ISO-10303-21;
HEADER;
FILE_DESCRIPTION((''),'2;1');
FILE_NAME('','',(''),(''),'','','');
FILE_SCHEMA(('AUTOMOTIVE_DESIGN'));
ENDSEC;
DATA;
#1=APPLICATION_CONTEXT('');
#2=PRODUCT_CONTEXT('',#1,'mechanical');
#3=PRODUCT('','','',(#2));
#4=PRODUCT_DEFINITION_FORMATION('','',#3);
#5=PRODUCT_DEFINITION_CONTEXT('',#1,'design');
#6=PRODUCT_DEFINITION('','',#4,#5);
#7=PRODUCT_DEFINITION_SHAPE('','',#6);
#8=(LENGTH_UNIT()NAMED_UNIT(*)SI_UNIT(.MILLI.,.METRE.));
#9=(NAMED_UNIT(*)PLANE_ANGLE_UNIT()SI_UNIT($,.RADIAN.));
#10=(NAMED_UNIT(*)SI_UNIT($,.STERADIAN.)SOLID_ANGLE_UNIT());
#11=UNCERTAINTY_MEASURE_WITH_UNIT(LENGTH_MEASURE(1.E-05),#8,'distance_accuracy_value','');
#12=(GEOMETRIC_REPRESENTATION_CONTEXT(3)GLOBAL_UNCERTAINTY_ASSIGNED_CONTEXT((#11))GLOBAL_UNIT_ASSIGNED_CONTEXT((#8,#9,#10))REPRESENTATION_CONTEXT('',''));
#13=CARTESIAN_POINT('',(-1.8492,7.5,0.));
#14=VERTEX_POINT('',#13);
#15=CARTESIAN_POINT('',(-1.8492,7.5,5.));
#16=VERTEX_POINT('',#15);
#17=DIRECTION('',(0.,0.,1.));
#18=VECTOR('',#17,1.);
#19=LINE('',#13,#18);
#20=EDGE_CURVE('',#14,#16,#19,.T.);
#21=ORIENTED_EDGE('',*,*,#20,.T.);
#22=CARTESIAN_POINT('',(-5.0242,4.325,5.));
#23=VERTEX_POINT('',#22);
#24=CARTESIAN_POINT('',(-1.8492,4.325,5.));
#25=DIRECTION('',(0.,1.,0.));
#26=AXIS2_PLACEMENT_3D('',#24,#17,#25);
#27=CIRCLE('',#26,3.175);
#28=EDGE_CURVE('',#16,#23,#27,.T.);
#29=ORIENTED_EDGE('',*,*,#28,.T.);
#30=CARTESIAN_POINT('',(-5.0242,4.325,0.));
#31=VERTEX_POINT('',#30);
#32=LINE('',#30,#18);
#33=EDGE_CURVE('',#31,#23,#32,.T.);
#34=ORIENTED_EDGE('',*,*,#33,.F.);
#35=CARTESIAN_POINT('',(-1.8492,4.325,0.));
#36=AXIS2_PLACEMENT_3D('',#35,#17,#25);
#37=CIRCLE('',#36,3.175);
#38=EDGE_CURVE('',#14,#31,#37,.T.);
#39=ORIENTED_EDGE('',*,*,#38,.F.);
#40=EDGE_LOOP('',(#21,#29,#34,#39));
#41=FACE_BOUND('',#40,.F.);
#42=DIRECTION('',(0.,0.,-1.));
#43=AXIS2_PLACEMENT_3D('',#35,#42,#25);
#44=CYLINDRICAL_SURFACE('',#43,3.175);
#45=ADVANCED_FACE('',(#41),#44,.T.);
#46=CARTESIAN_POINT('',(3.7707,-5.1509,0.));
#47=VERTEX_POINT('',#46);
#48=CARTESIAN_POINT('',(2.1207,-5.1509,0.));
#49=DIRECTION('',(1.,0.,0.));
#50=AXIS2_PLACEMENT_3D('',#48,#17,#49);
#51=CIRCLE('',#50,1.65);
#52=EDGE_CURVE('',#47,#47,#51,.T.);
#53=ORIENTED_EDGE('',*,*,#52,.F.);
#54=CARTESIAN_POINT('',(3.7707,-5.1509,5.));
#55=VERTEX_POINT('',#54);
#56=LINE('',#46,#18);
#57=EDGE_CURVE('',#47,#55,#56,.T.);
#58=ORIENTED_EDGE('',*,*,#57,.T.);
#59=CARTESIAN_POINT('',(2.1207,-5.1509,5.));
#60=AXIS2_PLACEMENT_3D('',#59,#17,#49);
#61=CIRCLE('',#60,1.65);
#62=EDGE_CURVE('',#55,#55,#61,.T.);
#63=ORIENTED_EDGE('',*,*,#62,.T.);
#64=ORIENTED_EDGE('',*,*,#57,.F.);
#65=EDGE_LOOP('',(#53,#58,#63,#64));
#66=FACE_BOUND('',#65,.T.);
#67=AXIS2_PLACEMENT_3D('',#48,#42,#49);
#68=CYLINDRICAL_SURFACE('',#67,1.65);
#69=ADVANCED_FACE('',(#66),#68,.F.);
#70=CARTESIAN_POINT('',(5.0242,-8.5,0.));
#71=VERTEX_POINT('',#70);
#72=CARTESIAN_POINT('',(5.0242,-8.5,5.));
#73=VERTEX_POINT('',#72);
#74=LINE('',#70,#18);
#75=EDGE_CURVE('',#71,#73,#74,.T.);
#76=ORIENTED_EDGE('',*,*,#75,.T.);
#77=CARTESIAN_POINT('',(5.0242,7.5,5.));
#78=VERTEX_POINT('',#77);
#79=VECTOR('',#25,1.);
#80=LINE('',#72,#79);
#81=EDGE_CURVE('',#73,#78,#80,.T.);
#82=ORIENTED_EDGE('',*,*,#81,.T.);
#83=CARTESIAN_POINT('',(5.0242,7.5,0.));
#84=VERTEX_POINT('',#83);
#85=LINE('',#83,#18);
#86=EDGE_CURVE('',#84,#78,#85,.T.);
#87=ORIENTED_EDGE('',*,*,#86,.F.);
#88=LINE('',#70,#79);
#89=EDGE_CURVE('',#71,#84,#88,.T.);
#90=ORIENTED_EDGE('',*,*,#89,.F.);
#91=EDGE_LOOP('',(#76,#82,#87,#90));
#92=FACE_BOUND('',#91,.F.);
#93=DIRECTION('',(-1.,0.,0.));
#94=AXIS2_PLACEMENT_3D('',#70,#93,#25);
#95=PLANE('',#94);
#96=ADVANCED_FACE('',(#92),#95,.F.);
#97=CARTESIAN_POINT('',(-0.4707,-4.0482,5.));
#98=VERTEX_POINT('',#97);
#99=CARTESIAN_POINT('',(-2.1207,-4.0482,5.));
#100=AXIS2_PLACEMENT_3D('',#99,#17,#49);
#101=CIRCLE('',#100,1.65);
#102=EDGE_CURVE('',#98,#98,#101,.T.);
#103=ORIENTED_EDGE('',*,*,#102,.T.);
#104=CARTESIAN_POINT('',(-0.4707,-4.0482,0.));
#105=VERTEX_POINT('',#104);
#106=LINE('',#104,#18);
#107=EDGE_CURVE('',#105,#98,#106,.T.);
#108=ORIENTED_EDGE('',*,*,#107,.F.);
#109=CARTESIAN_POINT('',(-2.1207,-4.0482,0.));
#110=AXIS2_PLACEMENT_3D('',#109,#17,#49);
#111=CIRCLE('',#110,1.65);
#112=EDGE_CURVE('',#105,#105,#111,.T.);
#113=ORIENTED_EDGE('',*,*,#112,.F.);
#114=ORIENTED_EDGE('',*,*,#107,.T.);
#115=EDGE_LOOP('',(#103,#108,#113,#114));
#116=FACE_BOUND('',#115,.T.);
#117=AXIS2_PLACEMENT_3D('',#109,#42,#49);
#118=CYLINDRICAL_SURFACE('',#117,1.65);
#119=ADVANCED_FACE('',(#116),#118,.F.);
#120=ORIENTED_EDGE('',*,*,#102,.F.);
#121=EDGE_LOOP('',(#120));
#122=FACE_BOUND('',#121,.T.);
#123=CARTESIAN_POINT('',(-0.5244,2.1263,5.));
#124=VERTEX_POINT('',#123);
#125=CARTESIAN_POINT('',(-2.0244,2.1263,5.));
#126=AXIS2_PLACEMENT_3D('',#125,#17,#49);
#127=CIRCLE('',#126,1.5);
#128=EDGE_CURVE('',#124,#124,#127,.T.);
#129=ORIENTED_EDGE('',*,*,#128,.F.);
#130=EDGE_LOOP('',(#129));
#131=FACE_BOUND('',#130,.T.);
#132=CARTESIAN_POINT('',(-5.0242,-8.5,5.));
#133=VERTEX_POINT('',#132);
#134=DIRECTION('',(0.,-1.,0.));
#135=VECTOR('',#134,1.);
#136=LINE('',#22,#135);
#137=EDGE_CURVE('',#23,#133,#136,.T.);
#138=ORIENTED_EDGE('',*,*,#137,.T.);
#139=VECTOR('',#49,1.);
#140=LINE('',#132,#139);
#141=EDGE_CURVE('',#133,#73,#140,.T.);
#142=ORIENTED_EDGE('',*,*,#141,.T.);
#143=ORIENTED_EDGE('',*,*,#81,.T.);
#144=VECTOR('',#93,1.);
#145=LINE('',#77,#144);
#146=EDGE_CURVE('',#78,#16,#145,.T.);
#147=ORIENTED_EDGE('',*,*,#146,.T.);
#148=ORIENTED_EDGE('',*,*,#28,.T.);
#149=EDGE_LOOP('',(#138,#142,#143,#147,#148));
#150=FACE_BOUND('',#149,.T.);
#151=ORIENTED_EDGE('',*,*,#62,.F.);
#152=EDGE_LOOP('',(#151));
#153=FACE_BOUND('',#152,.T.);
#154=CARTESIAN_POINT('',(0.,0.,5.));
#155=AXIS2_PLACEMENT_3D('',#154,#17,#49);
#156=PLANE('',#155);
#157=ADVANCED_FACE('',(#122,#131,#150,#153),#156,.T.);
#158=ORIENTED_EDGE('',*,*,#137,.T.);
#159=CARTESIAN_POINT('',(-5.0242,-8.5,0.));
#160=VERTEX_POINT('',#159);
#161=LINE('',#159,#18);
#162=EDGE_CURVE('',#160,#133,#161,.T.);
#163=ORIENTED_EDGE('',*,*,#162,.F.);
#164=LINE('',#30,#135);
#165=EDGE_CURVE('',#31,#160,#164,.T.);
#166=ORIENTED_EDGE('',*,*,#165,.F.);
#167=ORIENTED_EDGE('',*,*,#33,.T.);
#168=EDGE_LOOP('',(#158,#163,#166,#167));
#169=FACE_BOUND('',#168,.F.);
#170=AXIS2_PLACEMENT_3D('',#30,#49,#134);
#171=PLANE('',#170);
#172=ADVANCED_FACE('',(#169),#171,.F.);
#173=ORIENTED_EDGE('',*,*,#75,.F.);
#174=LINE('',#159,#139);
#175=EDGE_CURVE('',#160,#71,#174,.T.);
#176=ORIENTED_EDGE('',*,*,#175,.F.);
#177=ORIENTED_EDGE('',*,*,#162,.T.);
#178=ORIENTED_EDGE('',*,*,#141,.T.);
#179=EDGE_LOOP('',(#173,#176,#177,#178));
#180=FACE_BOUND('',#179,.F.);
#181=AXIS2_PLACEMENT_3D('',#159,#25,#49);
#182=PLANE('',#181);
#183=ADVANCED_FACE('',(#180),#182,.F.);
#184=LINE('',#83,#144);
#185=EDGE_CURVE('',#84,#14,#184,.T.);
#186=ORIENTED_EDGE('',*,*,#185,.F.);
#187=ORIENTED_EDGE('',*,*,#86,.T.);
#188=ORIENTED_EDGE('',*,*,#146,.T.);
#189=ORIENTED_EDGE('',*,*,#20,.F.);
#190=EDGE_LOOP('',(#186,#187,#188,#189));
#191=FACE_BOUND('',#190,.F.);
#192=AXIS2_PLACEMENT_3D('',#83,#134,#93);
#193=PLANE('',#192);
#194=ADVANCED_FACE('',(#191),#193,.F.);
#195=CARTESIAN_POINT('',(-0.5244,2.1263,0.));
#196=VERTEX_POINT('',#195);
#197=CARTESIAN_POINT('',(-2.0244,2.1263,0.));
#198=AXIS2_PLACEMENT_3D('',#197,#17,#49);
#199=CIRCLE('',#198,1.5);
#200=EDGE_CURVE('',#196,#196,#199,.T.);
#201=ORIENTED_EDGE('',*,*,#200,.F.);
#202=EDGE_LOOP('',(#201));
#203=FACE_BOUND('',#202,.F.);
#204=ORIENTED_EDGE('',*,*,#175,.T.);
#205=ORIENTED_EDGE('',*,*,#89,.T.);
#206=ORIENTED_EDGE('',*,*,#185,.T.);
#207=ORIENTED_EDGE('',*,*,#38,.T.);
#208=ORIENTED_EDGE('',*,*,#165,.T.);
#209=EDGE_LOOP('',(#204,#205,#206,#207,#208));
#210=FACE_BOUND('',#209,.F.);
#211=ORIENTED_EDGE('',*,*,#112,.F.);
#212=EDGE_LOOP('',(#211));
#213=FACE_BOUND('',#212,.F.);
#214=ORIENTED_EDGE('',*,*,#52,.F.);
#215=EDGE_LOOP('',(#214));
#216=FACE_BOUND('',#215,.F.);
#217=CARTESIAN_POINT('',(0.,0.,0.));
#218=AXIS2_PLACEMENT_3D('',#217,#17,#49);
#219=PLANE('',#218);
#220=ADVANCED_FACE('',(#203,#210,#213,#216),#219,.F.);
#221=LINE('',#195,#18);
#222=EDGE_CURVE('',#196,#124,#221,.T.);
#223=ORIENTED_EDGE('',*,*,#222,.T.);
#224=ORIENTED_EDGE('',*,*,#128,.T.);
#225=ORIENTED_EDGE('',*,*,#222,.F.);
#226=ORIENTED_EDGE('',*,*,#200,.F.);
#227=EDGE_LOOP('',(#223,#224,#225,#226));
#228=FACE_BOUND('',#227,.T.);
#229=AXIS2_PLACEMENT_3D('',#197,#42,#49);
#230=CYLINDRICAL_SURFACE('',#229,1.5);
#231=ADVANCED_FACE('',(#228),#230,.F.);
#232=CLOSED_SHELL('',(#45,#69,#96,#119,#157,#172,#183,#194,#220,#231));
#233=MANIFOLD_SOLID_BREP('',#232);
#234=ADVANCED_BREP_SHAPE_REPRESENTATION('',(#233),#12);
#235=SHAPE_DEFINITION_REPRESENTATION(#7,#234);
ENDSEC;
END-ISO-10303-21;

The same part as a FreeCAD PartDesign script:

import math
import FreeCAD as App
import Part
import Sketcher
from FreeCAD import Vector

doc = App.newDocument("Part")
params = doc.addObject("Spreadsheet::Sheet", "Params")
for row, (alias, value) in enumerate([
    ("sketch1_diameter", "3 mm"),
    ("sketch1_diameter2", "3.3 mm"),
    ("sketch1_height", "16 mm"),
    ("pad1_length", "5 mm"),
], start=1):
    params.set(f"A{row}", alias)
    params.set(f"B{row}", "=" + value)
    params.setAlias(f"B{row}", alias)

body = doc.addObject("PartDesign::Body", "Body")

# Sketch on XY plane
sketch1 = body.newObject("Sketcher::SketchObject", "Sketch")
sketch1.AttachmentSupport = (doc.getObject("XY_Plane"), [""])
sketch1.MapMode = "FlatFace"
sketch1.addGeometry(Part.ArcOfCircle(Part.Circle(Vector(-1.8492, 4.325, 0), Vector(0, 0, 1), 3.175), math.radians(90), math.radians(180)), False)
sketch1.addGeometry(Part.LineSegment(Vector(-5.0242, 4.325, 0), Vector(-5.0242, -8.5, 0)), False)
sketch1.addGeometry(Part.LineSegment(Vector(-5.0242, -8.5, 0), Vector(5.0242, -8.5, 0)), False)
sketch1.addGeometry(Part.LineSegment(Vector(5.0242, -8.5, 0), Vector(5.0242, 7.5, 0)), False)
sketch1.addGeometry(Part.LineSegment(Vector(5.0242, 7.5, 0), Vector(-1.8492, 7.5, 0)), False)
sketch1.addGeometry(Part.Circle(Vector(-2.1207, -4.0482, 0), Vector(0, 0, 1), 1.65), False)
sketch1.addGeometry(Part.Circle(Vector(2.1207, -5.1509, 0), Vector(0, 0, 1), 1.65), False)
sketch1.addGeometry(Part.Circle(Vector(-2.0244, 2.1263, 0), Vector(0, 0, 1), 1.5), False)
sketch1.addConstraint(Sketcher.Constraint("Tangent", 0, 2, 1, 1))
sketch1.addConstraint(Sketcher.Constraint("Coincident", 1, 2, 2, 1))
sketch1.addConstraint(Sketcher.Constraint("Coincident", 2, 2, 3, 1))
sketch1.addConstraint(Sketcher.Constraint("Coincident", 3, 2, 4, 1))
sketch1.addConstraint(Sketcher.Constraint("Tangent", 4, 2, 0, 1))
sketch1.addConstraint(Sketcher.Constraint("Vertical", 1))
sketch1.addConstraint(Sketcher.Constraint("Horizontal", 2))
sketch1.addConstraint(Sketcher.Constraint("Vertical", 3))
sketch1.addConstraint(Sketcher.Constraint("Horizontal", 4))
sketch1.addConstraint(Sketcher.Constraint("Equal", 5, 6))
sketch1.addConstraint(Sketcher.Constraint("Diameter", 7, 3.0))
sketch1.addConstraint(Sketcher.Constraint("Diameter", 5, 3.3))
sketch1.addConstraint(Sketcher.Constraint("Radius", 0, 3.175))
sketch1.addConstraint(Sketcher.Constraint("DistanceY", 3, 1, 3, 2, 16.0))
sketch1.addConstraint(Sketcher.Constraint("DistanceY", 1, 2, -1, 1, 8.5))
sketch1.addConstraint(Sketcher.Constraint("DistanceX", 0, 2, 7, 3, 2.9998))
sketch1.addConstraint(Sketcher.Constraint("DistanceX", 0, 3, 6, 3, 3.97))
sketch1.addConstraint(Sketcher.Constraint("DistanceX", 2, 1, 2, 2, 10.0484))
sketch1.addConstraint(Sketcher.Constraint("DistanceY", 6, 3, -1, 1, 5.151))
sketch1.addConstraint(Sketcher.Constraint("DistanceX", 5, 3, 2, 2, 7.145))
sketch1.addConstraint(Sketcher.Constraint("DistanceX", 0, 3, -1, 1, 1.8492))
sketch1.addConstraint(Sketcher.Constraint("DistanceY", 5, 3, -1, 1, 4.0482))
sketch1.addConstraint(Sketcher.Constraint("DistanceY", -1, 1, 7, 3, 2.1263))
sketch1.setExpression("Constraints[10]", "Params.sketch1_diameter")
sketch1.setExpression("Constraints[11]", "Params.sketch1_diameter2")
sketch1.setExpression("Constraints[13]", "Params.sketch1_height")
pad1 = body.newObject("PartDesign::Pad", "Pad")
pad1.Profile = sketch1
pad1.setExpression("Length", "Params.pad1_length")

doc.recompute()
